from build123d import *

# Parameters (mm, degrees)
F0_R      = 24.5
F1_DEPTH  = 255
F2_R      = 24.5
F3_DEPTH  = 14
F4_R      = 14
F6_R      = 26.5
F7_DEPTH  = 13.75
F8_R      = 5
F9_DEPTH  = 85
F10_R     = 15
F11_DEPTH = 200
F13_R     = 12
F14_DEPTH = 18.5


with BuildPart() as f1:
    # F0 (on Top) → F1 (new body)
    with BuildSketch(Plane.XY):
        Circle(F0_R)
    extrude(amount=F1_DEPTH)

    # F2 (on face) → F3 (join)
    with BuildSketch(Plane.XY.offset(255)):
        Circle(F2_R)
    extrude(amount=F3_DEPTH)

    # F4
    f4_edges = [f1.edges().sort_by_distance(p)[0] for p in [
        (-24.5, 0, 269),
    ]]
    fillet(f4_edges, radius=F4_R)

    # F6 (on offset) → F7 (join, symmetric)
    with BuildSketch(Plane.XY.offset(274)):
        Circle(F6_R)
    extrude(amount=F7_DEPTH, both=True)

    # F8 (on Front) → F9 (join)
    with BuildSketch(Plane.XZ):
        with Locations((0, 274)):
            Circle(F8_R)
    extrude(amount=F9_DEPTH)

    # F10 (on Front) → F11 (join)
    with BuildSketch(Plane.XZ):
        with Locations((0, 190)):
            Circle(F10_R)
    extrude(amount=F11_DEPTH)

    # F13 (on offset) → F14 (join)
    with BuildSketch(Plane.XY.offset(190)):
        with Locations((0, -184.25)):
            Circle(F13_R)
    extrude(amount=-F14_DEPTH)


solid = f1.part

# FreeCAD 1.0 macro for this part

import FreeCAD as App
import Part
import Sketcher
from FreeCAD import Vector


def edges_at(feature, points):
    """Names of the edges that pass closest to the given points."""
    edges = feature.Shape.Edges
    near = lambda p: min(range(len(edges)), key=lambda i: edges[i].distToShape(Part.Vertex(*p))[0])
    return sorted({f"Edge{near(p) + 1}" for p in points})

doc = App.newDocument("Part")
params = doc.addObject("Spreadsheet::Sheet", "Params")
for row, (alias, value) in enumerate([
    ("sketch1_diameter", "49 mm"),
    ("pad1_length", "255 mm"),
    ("sketch2_diameter", "49 mm"),
    ("pad2_length", "14 mm"),
    ("fillet_radius", "14 mm"),
    ("sketch3_diameter", "53 mm"),
    ("pad3_length", "27.5 mm"),
    ("sketch4_diameter", "10 mm"),
    ("pad4_length", "85 mm"),
    ("sketch5_diameter", "30 mm"),
    ("pad5_length", "200 mm"),
    ("sketch6_diameter", "24 mm"),
    ("pad6_length", "18.5 mm"),
], start=1):
    params.set(f"A{row}", alias)
    params.set(f"B{row}", "=" + value)
    params.setAlias(f"B{row}", alias)

body = doc.addObject("PartDesign::Body", "Body")

# Sketch on XY plane
sketch1 = body.newObject("Sketcher::SketchObject", "Sketch")
sketch1.AttachmentSupport = (doc.getObject("XY_Plane"), [""])
sketch1.MapMode = "FlatFace"
sketch1.addGeometry(Part.Circle(Vector(0, 0, 0), Vector(0, 0, 1), 24), False)
sketch1.addConstraint([
    Sketcher.Constraint("Coincident", 0, 3, -1, 1),
    Sketcher.Constraint("Diameter", 0, 49.0),
])
sketch1.setExpression("Constraints[1]", "Params.sketch1_diameter")
pad1 = body.newObject("PartDesign::Pad", "Pad")
pad1.Profile = sketch1
pad1.setExpression("Length", "Params.pad1_length")

# Sketch on XY plane
sketch2 = body.newObject("Sketcher::SketchObject", "Sketch001")
sketch2.AttachmentSupport = (doc.getObject("XY_Plane"), [""])
sketch2.MapMode = "FlatFace"
sketch2.AttachmentOffset = App.Placement(Vector(0, 0, 255), App.Rotation())
sketch2.addGeometry(Part.Circle(Vector(0, 0, 0), Vector(0, 0, 1), 24), False)
sketch2.addConstraint([
    Sketcher.Constraint("Coincident", 0, 3, -1, 1),
    Sketcher.Constraint("Diameter", 0, 49.0),
])
sketch2.setExpression("Constraints[1]", "Params.sketch2_diameter")
pad2 = body.newObject("PartDesign::Pad", "Pad001")
pad2.Profile = sketch2
pad2.setExpression("Length", "Params.pad2_length")
doc.recompute()

fillet = body.newObject("PartDesign::Fillet", "Fillet")
fillet.Base = (pad2, edges_at(pad2, [(-24.5, 0, 269)]))
fillet.setExpression("Radius", "Params.fillet_radius")

# Sketch on XY plane
sketch3 = body.newObject("Sketcher::SketchObject", "Sketch002")
sketch3.AttachmentSupport = (doc.getObject("XY_Plane"), [""])
sketch3.MapMode = "FlatFace"
sketch3.AttachmentOffset = App.Placement(Vector(0, 0, 274), App.Rotation())
sketch3.addGeometry(Part.Circle(Vector(0, 0, 0), Vector(0, 0, 1), 26), False)
sketch3.addConstraint([
    Sketcher.Constraint("Coincident", 0, 3, -1, 1),
    Sketcher.Constraint("Diameter", 0, 53.0),
])
sketch3.setExpression("Constraints[1]", "Params.sketch3_diameter")
pad3 = body.newObject("PartDesign::Pad", "Pad002")
pad3.Profile = sketch3
pad3.setExpression("Length", "Params.pad3_length")
pad3.Midplane = True

# Sketch on XZ plane
sketch4 = body.newObject("Sketcher::SketchObject", "Sketch003")
sketch4.AttachmentSupport = (doc.getObject("XZ_Plane"), [""])
sketch4.MapMode = "FlatFace"
sketch4.addGeometry(Part.Circle(Vector(0, 274, 0), Vector(0, 0, 1), 5), False)
sketch4.addConstraint([
    Sketcher.Constraint("PointOnObject", 0, 3, -2),
    Sketcher.Constraint("Diameter", 0, 10.0),
    Sketcher.Constraint("DistanceY", -1, 1, 0, 3, 274.0),
])
sketch4.setExpression("Constraints[1]", "Params.sketch4_diameter")
pad4 = body.newObject("PartDesign::Pad", "Pad003")
pad4.Profile = sketch4
pad4.setExpression("Length", "Params.pad4_length")

# Sketch on XZ plane
sketch5 = body.newObject("Sketcher::SketchObject", "Sketch004")
sketch5.AttachmentSupport = (doc.getObject("XZ_Plane"), [""])
sketch5.MapMode = "FlatFace"
sketch5.addGeometry(Part.Circle(Vector(0, 190, 0), Vector(0, 0, 1), 15), False)
sketch5.addConstraint([
    Sketcher.Constraint("PointOnObject", 0, 3, -2),
    Sketcher.Constraint("Diameter", 0, 30.0),
    Sketcher.Constraint("DistanceY", -1, 1, 0, 3, 190.0),
])
sketch5.setExpression("Constraints[1]", "Params.sketch5_diameter")
pad5 = body.newObject("PartDesign::Pad", "Pad004")
pad5.Profile = sketch5
pad5.setExpression("Length", "Params.pad5_length")

# Sketch on XY plane
sketch6 = body.newObject("Sketcher::SketchObject", "Sketch005")
sketch6.AttachmentSupport = (doc.getObject("XY_Plane"), [""])
sketch6.MapMode = "FlatFace"
sketch6.AttachmentOffset = App.Placement(Vector(0, 0, 190), App.Rotation())
sketch6.addGeometry(Part.Circle(Vector(0, -184, 0), Vector(0, 0, 1), 12), False)
sketch6.addConstraint([
    Sketcher.Constraint("PointOnObject", 0, 3, -2),
    Sketcher.Constraint("Diameter", 0, 24.0),
    Sketcher.Constraint("DistanceY", 0, 3, -1, 1, 184.25),
])
sketch6.setExpression("Constraints[1]", "Params.sketch6_diameter")
pad6 = body.newObject("PartDesign::Pad", "Pad005")
pad6.Profile = sketch6
pad6.setExpression("Length", "Params.pad6_length")
pad6.Reversed = True

doc.recompute()
